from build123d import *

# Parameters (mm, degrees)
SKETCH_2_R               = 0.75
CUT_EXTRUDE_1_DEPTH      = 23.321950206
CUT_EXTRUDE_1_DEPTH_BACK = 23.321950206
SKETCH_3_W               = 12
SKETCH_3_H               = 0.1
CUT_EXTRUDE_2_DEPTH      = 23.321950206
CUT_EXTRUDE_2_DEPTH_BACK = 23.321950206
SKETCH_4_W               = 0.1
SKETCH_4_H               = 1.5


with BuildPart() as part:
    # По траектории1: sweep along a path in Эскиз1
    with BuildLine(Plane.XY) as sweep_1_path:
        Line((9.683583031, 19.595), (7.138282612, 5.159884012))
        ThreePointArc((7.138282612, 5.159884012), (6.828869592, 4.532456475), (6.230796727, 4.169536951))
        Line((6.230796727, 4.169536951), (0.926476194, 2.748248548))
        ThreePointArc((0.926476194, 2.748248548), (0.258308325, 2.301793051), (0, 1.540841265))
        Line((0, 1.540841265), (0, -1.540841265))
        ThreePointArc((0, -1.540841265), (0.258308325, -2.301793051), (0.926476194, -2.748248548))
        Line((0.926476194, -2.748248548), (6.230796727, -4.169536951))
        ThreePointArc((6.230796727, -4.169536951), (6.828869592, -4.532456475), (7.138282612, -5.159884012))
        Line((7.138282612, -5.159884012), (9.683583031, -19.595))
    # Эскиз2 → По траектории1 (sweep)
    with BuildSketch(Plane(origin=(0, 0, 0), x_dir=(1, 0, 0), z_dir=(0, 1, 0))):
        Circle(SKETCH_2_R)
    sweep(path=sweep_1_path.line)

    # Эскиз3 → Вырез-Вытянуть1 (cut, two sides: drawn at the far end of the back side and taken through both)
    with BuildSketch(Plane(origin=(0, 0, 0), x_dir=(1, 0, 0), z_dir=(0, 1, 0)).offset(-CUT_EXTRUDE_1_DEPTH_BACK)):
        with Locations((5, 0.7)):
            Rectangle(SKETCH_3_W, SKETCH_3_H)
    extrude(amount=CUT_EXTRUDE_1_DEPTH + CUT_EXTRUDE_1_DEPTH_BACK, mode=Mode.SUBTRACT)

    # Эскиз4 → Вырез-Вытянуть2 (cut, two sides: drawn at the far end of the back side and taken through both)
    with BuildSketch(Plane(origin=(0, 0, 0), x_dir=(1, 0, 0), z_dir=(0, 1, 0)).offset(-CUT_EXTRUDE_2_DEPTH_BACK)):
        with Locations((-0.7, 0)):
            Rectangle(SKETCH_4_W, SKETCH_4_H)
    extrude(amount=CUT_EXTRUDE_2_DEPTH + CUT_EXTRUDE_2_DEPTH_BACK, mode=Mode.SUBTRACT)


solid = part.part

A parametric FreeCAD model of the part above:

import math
import FreeCAD as App
import Part
import Sketcher
Q = App.Units.Quantity


def add_polygon(sketch, points):
    """Adds a closed chain of lines whose ends are joined by coincident constraints."""
    first, n = sketch.GeometryCount, len(points)
    for a, b in zip(points, points[1:] + points[:1]):
        sketch.addGeometry(Part.LineSegment(App.Vector(*a, 0), App.Vector(*b, 0)), False)
    for i in range(n):
        sketch.addConstraint(Sketcher.Constraint("Coincident", first + i, 2, first + (i + 1) % n, 1))

doc = App.newDocument("Part")
params = doc.addObject("Spreadsheet::Sheet", "Params")
for row, (alias, value) in enumerate([
    ("sketch1_diameter", "1.5 mm"),
    ("sketch2_radius", "1.25 mm"),
    ("sketch3_width", "12 mm"),
    ("sketch3_height", "0.1 mm"),
    ("sketch4_width", "0.1 mm"),
    ("sketch4_height", "1.5 mm"),
], start=1):
    params.set(f"A{row}", alias)
    params.set(f"B{row}", "=" + value)
    params.setAlias(f"B{row}", alias)

body = doc.addObject("PartDesign::Body", "Body")

# Sketch on XZ plane
sketch1 = doc.addObject("Sketcher::SketchObject", "Sketch")
body.addObject(sketch1)
sketch1.AttachmentSupport = (doc.XZ_Plane, [""])
sketch1.MapMode = "FlatFace"
sketch1.addGeometry(Part.Circle(App.Vector(0, 0, 0), App.Vector(0, 0, 1), 0.8), False)
sketch1.addConstraint([
    Sketcher.Constraint("Coincident", 0, 3, -1, 1),
    Sketcher.Constraint("Diameter", 0, Q("1.5 mm")),
])
sketch1.setExpression("Constraints[1]", "Params.sketch1_diameter")

# Sketch on XY plane
sketch2 = doc.addObject("Sketcher::SketchObject", "Sketch001")
body.addObject(sketch2)
sketch2.AttachmentSupport = (doc.XY_Plane, [""])
sketch2.MapMode = "FlatFace"
sketch2.addGeometry([
    Part.LineSegment(App.Vector(9.7, 19.6, 0), App.Vector(7.1, 5.2, 0)),  # 0
    Part.ArcOfCircle(Part.Circle(App.Vector(5.9, 5.4, 0), App.Vector(0, 0, 1), 1.3), math.radians(-75), math.radians(-10)),  # 1
    Part.LineSegment(App.Vector(6.2, 4.2, 0), App.Vector(0.9, 2.7, 0)),  # 2
    Part.ArcOfCircle(Part.Circle(App.Vector(1.3, 1.5, 0), App.Vector(0, 0, 1), 1.3), math.radians(105), math.radians(180)),  # 3
    Part.LineSegment(App.Vector(0, 1.5, 0), App.Vector(0, -1.5, 0)),  # 4
    Part.ArcOfCircle(Part.Circle(App.Vector(1.3, -1.5, 0), App.Vector(0, 0, 1), 1.3), math.radians(-180), math.radians(-105)),  # 5
    Part.LineSegment(App.Vector(0.9, -2.7, 0), App.Vector(6.2, -4.2, 0)),  # 6
    Part.ArcOfCircle(Part.Circle(App.Vector(5.9, -5.4, 0), App.Vector(0, 0, 1), 1.3), math.radians(10), math.radians(75)),  # 7
    Part.LineSegment(App.Vector(7.1, -5.2, 0), App.Vector(9.7, -19.6, 0)),  # 8
], False)
sketch2.addConstraint([
    Sketcher.Constraint("Tangent", 0, 2, 1, 2),
    Sketcher.Constraint("Tangent", 1, 1, 2, 1),
    Sketcher.Constraint("Tangent", 2, 2, 3, 1),
    Sketcher.Constraint("Tangent", 3, 2, 4, 1),
    Sketcher.Constraint("Tangent", 4, 2, 5, 1),
    Sketcher.Constraint("Tangent", 5, 2, 6, 1),
    Sketcher.Constraint("Tangent", 6, 2, 7, 2),
    Sketcher.Constraint("Tangent", 7, 1, 8, 1),
    Sketcher.Constraint("Vertical", 4),
    Sketcher.Constraint("Equal", 1, 3),
    Sketcher.Constraint("Equal", 3, 5),
    Sketcher.Constraint("Equal", 5, 7),
    Sketcher.Constraint("Symmetric", 3, 2, 4, 2, -1, 1),
    Sketcher.Constraint("Symmetric", 1, 3, 7, 3, -1),
    Sketcher.Constraint("Symmetric", 0, 1, 8, 2, -1),
    Sketcher.Constraint("Angle", 0, Q("-100 deg")),
    Sketcher.Constraint("Angle", 2, Q("-165 deg")),
    Sketcher.Constraint("Radius", 1, Q("1.25 mm")),
    Sketcher.Constraint("DistanceY", -1, 1, 0, 1, Q("19.595 mm")),
    Sketcher.Constraint("Distance", 0, Q("14.657801 mm")),
    Sketcher.Constraint("DistanceY", 4, 2, 4, 1, Q("3.081683 mm")),
])
sketch2.setExpression("Constraints[17]", "Params.sketch2_radius")
doc.recompute()

additivepipe = doc.addObject("PartDesign::AdditivePipe", "AdditivePipe")
body.addObject(additivepipe)
additivepipe.Profile = sketch1
additivepipe.Spine = (sketch2, ["Edge1", "Edge2", "Edge3", "Edge4", "Edge5", "Edge6", "Edge7", "Edge8", "Edge9"])

# Sketch on XZ plane
sketch3 = doc.addObject("Sketcher::SketchObject", "Sketch002")
body.addObject(sketch3)
sketch3.AttachmentSupport = (doc.XZ_Plane, [""])
sketch3.MapMode = "FlatFace"
add_polygon(sketch3, [(-1, -0.75), (-1, -0.65), (11, -0.65), (11, -0.75)])  # lines 0-3
sketch3.addConstraint([
    Sketcher.Constraint("Vertical", 0),
    Sketcher.Constraint("Horizontal", 1),
    Sketcher.Constraint("Vertical", 2),
    Sketcher.Constraint("Horizontal", 3),
    Sketcher.Constraint("DistanceX", 1, 1, 1, 2, Q("12 mm")),
    Sketcher.Constraint("DistanceY", 0, 1, 0, 2, Q("0.1 mm")),
    Sketcher.Constraint("DistanceX", 0, 2, -1, 1, Q("1 mm")),
    Sketcher.Constraint("DistanceY", 0, 2, -1, 1, Q("0.65 mm")),
])
sketch3.setExpression("Constraints[8]", "Params.sketch3_width")
sketch3.setExpression("Constraints[9]", "Params.sketch3_height")
pocket1 = doc.addObject("PartDesign::Pocket", "Pocket")
body.addObject(pocket1)
pocket1.Profile = sketch3
pocket1.Type = "ThroughAll"
pocket1.Midplane = True

# Sketch on XZ plane
sketch4 = doc.addObject("Sketcher::SketchObject", "Sketch003")
body.addObject(sketch4)
sketch4.AttachmentSupport = (doc.XZ_Plane, [""])
sketch4.MapMode = "FlatFace"
add_polygon(sketch4, [(-0.75, -0.75), (-0.75, 0.75), (-0.65, 0.75), (-0.65, -0.75)])  # lines 0-3
sketch4.addConstraint([
    Sketcher.Constraint("Vertical", 0),
    Sketcher.Constraint("Horizontal", 1),
    Sketcher.Constraint("Vertical", 2),
    Sketcher.Constraint("Horizontal", 3),
    Sketcher.Constraint("DistanceX", 1, 1, 1, 2, Q("0.1 mm")),
    Sketcher.Constraint("DistanceY", 0, 1, 0, 2, Q("1.5 mm")),
    Sketcher.Constraint("DistanceX", 0, 2, -1, 1, Q("0.75 mm")),
    Sketcher.Constraint("DistanceY", -1, 1, 0, 2, Q("0.75 mm")),
])
sketch4.setExpression("Constraints[8]", "Params.sketch4_width")
sketch4.setExpression("Constraints[9]", "Params.sketch4_height")
pocket2 = doc.addObject("PartDesign::Pocket", "Pocket001")
body.addObject(pocket2)
pocket2.Profile = sketch4
pocket2.Type = "ThroughAll"
pocket2.Midplane = True

doc.recompute()
